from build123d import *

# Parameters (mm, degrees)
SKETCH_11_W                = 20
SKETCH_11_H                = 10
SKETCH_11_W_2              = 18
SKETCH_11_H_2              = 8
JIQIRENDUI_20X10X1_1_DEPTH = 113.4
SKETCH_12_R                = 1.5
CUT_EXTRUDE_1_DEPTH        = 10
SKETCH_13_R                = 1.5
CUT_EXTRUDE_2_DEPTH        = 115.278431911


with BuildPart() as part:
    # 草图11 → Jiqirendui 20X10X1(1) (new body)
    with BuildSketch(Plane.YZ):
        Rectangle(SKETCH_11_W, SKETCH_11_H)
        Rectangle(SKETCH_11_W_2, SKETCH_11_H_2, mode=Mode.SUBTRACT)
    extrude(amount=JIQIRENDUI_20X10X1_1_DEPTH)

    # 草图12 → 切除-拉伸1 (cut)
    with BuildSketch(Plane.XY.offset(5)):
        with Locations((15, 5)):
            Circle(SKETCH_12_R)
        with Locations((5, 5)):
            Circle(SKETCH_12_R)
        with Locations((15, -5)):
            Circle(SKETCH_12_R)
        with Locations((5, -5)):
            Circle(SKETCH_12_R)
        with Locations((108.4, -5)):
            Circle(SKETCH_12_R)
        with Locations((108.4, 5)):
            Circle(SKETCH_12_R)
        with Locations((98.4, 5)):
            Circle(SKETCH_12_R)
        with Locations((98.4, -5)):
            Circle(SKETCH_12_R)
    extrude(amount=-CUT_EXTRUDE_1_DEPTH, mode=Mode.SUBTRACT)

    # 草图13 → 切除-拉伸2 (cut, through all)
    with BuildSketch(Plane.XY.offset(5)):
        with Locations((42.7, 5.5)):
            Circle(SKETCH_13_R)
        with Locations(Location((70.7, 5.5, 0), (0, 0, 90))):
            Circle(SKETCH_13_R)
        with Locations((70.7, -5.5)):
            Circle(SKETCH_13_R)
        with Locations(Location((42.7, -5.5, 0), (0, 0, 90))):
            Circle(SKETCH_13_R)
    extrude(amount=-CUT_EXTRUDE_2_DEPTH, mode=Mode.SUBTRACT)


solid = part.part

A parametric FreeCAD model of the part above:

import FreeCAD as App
import Part
import Sketcher
from FreeCAD import Vector


def add_polygon(sketch, points):
    """Adds a closed chain of lines whose ends are joined by coincident constraints."""
    first, n = sketch.GeometryCount, len(points)
    for a, b in zip(points, points[1:] + points[:1]):
        sketch.addGeometry(Part.LineSegment(App.Vector(*a, 0), App.Vector(*b, 0)), False)
    for i in range(n):
        sketch.addConstraint(Sketcher.Constraint("Coincident", first + i, 2, first + (i + 1) % n, 1))

doc = App.newDocument("Part")
body = doc.addObject("PartDesign::Body", "Body")

# Sketch on YZ plane
sketch1 = body.newObject("Sketcher::SketchObject", "Sketch")
sketch1.AttachmentSupport = (doc.getObject("YZ_Plane"), [""])
sketch1.MapMode = "FlatFace"
add_polygon(sketch1, [(-10, 5), (-10, -5), (10, -5), (10, 5)])  # lines 0-3
add_polygon(sketch1, [(9, -4), (-9, -4), (-9, 4), (9, 4)])  # lines 4-7
sketch1.addConstraint([
    Sketcher.Constraint("Vertical", 0),
    Sketcher.Constraint("Horizontal", 1),
    Sketcher.Constraint("Vertical", 2),
    Sketcher.Constraint("Horizontal", 3),
    Sketcher.Constraint("Horizontal", 4),
    Sketcher.Constraint("Vertical", 5),
    Sketcher.Constraint("Horizontal", 6),
    Sketcher.Constraint("Vertical", 7),
    Sketcher.Constraint("Symmetric", 0, 2, 2, 2, -1, 1),
    Sketcher.Constraint("Symmetric", 4, 2, 6, 2, -1, 1),
    Sketcher.Constraint("DistanceX", 1, 1, 1, 2, 20.0),
    Sketcher.Constraint("DistanceX", 4, 2, 4, 1, 18.0),
    Sketcher.Constraint("DistanceY", 0, 2, 0, 1, 10.0),
    Sketcher.Constraint("DistanceY", 5, 1, 5, 2, 8.0),
])
pad1 = body.newObject("PartDesign::Pad", "Pad")
pad1.Profile = sketch1
pad1.Length = 113.4

# Sketch on XY plane
sketch2 = body.newObject("Sketcher::SketchObject", "Sketch001")
sketch2.AttachmentSupport = (doc.getObject("XY_Plane"), [""])
sketch2.MapMode = "FlatFace"
sketch2.AttachmentOffset = App.Placement(Vector(0, 0, 5), App.Rotation())
sketch2.addGeometry([
    Part.Circle(Vector(15, 5, 0), Vector(0, 0, 1), 1.5),  # 0
    Part.Circle(Vector(5, 5, 0), Vector(0, 0, 1), 1.5),  # 1
    Part.Circle(Vector(15, -5, 0), Vector(0, 0, 1), 1.5),  # 2
    Part.Circle(Vector(5, -5, 0), Vector(0, 0, 1), 1.5),  # 3
    Part.Circle(Vector(108.4, -5, 0), Vector(0, 0, 1), 1.5),  # 4
    Part.Circle(Vector(108.4, 5, 0), Vector(0, 0, 1), 1.5),  # 5
    Part.Circle(Vector(98.4, 5, 0), Vector(0, 0, 1), 1.5),  # 6
    Part.Circle(Vector(98.4, -5, 0), Vector(0, 0, 1), 1.5),  # 7
], False)
sketch2.addConstraint([
    Sketcher.Constraint("Equal", 0, 1),
    Sketcher.Constraint("Equal", 1, 2),
    Sketcher.Constraint("Equal", 2, 3),
    Sketcher.Constraint("Equal", 3, 4),
    Sketcher.Constraint("Equal", 4, 5),
    Sketcher.Constraint("Equal", 5, 6),
    Sketcher.Constraint("Equal", 6, 7),
    Sketcher.Constraint("Symmetric", 0, 3, 2, 3, -1),
    Sketcher.Constraint("Symmetric", 1, 3, 3, 3, -1),
    Sketcher.Constraint("Symmetric", 4, 3, 5, 3, -1),
    Sketcher.Constraint("Symmetric", 6, 3, 7, 3, -1),
    Sketcher.Constraint("Horizontal", 0, 3, 1, 3),
    Sketcher.Constraint("Horizontal", 3, 3, 4, 3),
    Sketcher.Constraint("Horizontal", 5, 3, 6, 3),
    Sketcher.Constraint("Diameter", 0, 3.0),
    Sketcher.Constraint("DistanceX", -1, 1, 0, 3, 15.0),
    Sketcher.Constraint("DistanceY", -1, 1, 0, 3, 5.0),
    Sketcher.Constraint("DistanceX", -1, 1, 1, 3, 5.0),
    Sketcher.Constraint("DistanceX", 6, 3, 5, 3, 10.0),
    Sketcher.Constraint("DistanceX", -1, 1, 4, 3, 108.4),
])
pocket1 = body.newObject("PartDesign::Pocket", "Pocket")
pocket1.Profile = sketch2
pocket1.Length = 10

# Sketch on XY plane
sketch3 = body.newObject("Sketcher::SketchObject", "Sketch002")
sketch3.AttachmentSupport = (doc.getObject("XY_Plane"), [""])
sketch3.MapMode = "FlatFace"
sketch3.AttachmentOffset = App.Placement(Vector(0, 0, 5), App.Rotation())
sketch3.addGeometry([
    Part.Circle(Vector(42.7, 5.5, 0), Vector(0, 0, 1), 1.5),
    Part.Circle(Vector(70.7, 5.5, 0), Vector(0, 0, 1), 1.5),
    Part.Circle(Vector(70.7, -5.5, 0), Vector(0, 0, 1), 1.5),
    Part.Circle(Vector(42.7, -5.5, 0), Vector(0, 0, 1), 1.5),
], False)
sketch3.addConstraint([
    Sketcher.Constraint("Equal", 0, 1),
    Sketcher.Constraint("Equal", 1, 2),
    Sketcher.Constraint("Equal", 2, 3),
    Sketcher.Constraint("Symmetric", 1, 3, 2, 3, -1),
    Sketcher.Constraint("Symmetric", 0, 3, 3, 3, -1),
    Sketcher.Constraint("Horizontal", 0, 3, 1, 3),
    Sketcher.Constraint("Diameter", 0, 3.0),
    Sketcher.Constraint("DistanceX", 0, 3, 1, 3, 28.0),
    Sketcher.Constraint("DistanceY", 2, 3, 1, 3, 11.0),
    Sketcher.Constraint("DistanceX", -1, 1, 0, 3, 42.7),
])
pocket2 = body.newObject("PartDesign::Pocket", "Pocket001")
pocket2.Profile = sketch3
pocket2.Type = "ThroughAll"

doc.recompute()
